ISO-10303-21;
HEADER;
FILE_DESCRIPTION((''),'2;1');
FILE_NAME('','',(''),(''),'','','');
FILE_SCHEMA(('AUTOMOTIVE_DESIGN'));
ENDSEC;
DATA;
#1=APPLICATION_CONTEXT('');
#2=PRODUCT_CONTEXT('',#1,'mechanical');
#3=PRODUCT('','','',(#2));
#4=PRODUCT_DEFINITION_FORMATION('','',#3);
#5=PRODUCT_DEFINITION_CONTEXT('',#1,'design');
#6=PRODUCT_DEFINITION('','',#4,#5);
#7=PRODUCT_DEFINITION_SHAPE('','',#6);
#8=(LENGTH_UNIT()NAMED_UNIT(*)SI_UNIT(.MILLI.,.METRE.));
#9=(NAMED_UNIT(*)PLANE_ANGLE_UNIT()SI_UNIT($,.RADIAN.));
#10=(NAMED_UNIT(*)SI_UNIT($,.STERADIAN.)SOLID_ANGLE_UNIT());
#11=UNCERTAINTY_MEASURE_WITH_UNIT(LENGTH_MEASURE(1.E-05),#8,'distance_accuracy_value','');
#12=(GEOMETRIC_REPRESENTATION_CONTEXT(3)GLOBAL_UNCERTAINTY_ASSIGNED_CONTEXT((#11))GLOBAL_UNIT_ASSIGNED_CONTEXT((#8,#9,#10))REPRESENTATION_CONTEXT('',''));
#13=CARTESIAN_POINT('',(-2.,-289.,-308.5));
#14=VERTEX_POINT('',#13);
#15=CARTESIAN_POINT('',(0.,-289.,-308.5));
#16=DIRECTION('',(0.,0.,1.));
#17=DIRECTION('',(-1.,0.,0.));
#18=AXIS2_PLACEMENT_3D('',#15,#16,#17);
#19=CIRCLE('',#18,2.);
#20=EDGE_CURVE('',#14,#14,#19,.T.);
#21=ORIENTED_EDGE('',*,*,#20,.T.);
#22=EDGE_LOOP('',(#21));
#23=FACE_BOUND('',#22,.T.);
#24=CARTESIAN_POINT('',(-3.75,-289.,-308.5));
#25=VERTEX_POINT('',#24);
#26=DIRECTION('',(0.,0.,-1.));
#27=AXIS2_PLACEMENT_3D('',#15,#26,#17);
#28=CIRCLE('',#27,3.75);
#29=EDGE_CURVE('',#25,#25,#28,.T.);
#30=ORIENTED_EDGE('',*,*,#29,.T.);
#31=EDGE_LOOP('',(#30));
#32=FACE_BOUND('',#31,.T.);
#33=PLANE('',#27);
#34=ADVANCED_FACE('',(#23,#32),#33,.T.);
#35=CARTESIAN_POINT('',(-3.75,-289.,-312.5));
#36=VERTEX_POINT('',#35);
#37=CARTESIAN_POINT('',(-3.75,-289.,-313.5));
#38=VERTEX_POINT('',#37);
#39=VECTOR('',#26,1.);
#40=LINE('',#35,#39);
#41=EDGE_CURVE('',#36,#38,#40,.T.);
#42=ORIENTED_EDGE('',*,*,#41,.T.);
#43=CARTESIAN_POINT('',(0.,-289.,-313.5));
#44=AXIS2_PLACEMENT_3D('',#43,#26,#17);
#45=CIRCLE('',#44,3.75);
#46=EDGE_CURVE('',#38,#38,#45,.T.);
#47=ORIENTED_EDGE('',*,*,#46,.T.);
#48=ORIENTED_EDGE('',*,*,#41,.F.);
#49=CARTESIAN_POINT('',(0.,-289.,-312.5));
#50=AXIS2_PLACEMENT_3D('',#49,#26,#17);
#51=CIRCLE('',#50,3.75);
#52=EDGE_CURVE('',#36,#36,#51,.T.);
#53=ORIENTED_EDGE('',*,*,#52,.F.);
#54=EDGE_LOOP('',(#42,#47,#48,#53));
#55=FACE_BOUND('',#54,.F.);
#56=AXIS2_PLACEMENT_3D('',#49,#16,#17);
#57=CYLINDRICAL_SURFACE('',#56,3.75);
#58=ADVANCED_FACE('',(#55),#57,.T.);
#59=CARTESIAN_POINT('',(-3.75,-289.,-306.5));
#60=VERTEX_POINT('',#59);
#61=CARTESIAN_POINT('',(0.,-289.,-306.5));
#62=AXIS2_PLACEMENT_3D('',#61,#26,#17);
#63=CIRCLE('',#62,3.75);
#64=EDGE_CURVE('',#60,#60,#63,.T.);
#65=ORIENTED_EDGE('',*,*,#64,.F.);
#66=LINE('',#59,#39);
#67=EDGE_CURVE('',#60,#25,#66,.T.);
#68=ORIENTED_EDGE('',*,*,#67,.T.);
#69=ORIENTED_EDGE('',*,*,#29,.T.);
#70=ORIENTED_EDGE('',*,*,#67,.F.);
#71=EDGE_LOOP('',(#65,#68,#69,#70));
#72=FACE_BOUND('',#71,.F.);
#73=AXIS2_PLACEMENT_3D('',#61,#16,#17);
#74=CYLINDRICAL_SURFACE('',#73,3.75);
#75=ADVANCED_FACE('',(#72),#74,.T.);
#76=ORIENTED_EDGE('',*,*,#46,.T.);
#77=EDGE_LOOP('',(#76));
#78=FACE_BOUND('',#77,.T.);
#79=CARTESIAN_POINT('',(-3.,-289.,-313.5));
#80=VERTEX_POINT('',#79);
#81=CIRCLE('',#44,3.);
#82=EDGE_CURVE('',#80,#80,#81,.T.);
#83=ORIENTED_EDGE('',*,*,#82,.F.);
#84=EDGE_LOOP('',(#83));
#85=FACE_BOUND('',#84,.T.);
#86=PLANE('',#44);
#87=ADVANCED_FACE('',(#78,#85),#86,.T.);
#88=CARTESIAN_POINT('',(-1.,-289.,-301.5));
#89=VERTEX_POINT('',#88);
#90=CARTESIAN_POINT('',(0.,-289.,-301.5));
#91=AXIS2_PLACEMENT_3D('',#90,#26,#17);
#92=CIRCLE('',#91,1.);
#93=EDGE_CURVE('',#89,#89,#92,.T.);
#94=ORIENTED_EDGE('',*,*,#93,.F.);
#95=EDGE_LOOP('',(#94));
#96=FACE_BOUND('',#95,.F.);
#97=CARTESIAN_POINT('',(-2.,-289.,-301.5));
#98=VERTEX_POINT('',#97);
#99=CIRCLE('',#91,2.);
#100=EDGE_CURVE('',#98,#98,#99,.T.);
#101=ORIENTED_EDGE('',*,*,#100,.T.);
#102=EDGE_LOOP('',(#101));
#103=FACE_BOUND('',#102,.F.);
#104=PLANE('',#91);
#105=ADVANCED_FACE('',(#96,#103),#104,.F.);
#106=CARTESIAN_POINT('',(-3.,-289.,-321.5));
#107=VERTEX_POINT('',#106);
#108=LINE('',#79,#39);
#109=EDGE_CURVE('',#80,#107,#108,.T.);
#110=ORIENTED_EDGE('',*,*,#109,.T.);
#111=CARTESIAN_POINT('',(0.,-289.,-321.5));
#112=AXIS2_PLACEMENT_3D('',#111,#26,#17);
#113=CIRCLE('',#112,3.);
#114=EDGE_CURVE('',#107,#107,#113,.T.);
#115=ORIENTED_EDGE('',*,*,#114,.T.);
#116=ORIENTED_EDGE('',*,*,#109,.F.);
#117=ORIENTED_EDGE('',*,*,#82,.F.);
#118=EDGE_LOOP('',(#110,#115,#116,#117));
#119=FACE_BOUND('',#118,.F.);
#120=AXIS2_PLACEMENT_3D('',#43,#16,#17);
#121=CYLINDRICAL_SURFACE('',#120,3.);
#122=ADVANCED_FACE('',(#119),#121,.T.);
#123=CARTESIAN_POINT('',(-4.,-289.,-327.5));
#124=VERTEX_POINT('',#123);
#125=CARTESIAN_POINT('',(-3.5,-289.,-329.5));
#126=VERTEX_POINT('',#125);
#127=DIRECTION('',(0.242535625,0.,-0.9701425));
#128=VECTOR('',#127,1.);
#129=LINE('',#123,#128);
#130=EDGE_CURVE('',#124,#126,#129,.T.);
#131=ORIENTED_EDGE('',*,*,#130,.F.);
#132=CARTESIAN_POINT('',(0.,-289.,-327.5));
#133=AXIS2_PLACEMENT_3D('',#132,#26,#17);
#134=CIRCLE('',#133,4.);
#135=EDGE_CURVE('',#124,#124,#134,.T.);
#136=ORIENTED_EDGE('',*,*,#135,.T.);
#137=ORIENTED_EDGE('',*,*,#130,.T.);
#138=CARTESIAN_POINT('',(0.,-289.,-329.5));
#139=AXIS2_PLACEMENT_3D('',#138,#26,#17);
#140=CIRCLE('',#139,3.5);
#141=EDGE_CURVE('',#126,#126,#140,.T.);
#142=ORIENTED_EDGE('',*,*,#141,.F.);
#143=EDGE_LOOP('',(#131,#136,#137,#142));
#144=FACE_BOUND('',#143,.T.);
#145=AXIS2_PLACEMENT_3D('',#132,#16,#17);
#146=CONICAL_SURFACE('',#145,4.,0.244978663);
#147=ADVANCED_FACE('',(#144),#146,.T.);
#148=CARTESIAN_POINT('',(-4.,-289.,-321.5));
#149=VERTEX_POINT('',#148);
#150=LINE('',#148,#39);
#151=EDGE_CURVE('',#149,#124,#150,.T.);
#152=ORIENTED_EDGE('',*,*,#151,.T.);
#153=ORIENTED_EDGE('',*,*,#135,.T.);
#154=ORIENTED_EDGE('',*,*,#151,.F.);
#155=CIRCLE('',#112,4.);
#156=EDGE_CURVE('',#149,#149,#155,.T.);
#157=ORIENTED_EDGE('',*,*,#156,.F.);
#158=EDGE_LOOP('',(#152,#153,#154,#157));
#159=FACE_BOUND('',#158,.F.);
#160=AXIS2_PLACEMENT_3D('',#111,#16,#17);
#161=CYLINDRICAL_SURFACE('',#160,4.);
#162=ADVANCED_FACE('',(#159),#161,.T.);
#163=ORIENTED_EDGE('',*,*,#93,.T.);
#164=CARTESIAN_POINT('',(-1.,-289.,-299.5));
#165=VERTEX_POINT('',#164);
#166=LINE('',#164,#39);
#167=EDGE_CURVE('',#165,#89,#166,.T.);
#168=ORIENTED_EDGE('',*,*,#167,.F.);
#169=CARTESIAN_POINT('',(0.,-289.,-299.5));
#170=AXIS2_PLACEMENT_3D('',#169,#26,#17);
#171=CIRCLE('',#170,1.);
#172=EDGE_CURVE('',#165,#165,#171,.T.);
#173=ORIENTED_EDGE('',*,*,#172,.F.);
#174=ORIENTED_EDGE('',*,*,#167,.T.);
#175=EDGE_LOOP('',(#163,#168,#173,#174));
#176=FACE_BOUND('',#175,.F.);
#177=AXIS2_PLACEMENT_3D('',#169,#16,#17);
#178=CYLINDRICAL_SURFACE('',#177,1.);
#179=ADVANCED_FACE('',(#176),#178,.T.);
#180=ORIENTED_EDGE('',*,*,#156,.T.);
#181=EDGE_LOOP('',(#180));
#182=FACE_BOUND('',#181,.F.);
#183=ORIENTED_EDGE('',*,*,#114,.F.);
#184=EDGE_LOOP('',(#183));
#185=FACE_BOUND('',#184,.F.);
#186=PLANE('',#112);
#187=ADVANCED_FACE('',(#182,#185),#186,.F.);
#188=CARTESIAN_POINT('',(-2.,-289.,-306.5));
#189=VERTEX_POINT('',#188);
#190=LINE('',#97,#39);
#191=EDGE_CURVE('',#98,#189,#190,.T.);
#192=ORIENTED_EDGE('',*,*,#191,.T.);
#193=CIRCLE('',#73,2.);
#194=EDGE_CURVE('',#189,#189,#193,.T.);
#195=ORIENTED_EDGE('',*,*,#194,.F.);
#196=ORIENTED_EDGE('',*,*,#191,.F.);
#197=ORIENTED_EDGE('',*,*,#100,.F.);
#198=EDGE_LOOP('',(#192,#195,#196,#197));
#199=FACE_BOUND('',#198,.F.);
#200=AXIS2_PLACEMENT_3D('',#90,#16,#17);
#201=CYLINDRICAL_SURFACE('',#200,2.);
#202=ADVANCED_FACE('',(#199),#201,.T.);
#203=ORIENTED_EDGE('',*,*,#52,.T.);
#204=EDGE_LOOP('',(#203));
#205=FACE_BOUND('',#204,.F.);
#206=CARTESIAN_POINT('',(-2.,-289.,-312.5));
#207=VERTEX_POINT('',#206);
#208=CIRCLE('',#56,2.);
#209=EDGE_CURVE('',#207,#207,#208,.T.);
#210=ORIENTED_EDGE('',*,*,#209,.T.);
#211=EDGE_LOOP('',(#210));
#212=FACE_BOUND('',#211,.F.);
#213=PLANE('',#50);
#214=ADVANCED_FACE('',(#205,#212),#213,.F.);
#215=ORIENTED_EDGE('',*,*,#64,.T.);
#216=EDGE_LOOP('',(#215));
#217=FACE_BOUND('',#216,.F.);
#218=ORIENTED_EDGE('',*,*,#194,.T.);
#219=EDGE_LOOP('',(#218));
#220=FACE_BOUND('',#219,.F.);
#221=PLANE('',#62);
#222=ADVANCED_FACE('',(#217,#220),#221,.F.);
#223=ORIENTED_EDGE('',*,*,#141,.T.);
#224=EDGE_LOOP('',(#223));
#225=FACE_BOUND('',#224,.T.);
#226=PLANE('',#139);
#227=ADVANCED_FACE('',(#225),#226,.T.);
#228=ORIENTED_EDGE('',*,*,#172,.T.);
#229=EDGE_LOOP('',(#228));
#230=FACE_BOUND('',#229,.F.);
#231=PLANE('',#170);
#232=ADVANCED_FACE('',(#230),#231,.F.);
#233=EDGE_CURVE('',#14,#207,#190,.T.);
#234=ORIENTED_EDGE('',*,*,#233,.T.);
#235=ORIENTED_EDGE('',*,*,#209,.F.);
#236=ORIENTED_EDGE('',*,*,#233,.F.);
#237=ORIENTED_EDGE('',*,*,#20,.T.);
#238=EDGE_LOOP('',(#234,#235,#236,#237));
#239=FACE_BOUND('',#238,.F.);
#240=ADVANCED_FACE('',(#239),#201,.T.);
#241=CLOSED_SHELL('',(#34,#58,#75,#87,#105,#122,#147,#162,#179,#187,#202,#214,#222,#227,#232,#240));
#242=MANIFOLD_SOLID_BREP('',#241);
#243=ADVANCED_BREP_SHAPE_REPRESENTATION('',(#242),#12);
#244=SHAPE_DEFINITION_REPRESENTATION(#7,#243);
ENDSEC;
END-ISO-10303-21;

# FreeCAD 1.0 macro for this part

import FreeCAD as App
import Part
import Sketcher
from FreeCAD import Vector


def add_polygon(sketch, points):
    """Adds a closed chain of lines whose ends are joined by coincident constraints."""
    first, n = sketch.GeometryCount, len(points)
    for a, b in zip(points, points[1:] + points[:1]):
        sketch.addGeometry(Part.LineSegment(App.Vector(*a, 0), App.Vector(*b, 0)), False)
    for i in range(n):
        sketch.addConstraint(Sketcher.Constraint("Coincident", first + i, 2, first + (i + 1) % n, 1))

doc = App.newDocument("Part")
body = doc.addObject("PartDesign::Body", "Body")

# Sketch on XY plane
sketch1 = body.newObject("Sketcher::SketchObject", "Sketch")
sketch1.AttachmentSupport = (doc.getObject("XY_Plane"), [""])
sketch1.MapMode = "FlatFace"
sketch1.addGeometry(Part.Circle(Vector(0, 0, 0), Vector(0, 0, 1), 2), False)
sketch1.addConstraint(Sketcher.Constraint("Coincident", 0, 3, -1, 1))
sketch1.addConstraint(Sketcher.Constraint("Diameter", 0, 4.0))
pad1 = body.newObject("PartDesign::Pad", "Pad")
pad1.Profile = sketch1
pad1.Length = 28
body2 = doc.addObject("PartDesign::Body", "Body001")

# Sketch on XY plane
sketch2 = body2.newObject("Sketcher::SketchObject", "Sketch001")
sketch2.AttachmentSupport = (doc.getObject("XY_Plane001"), [""])
sketch2.MapMode = "FlatFace"
sketch2.AttachmentOffset = App.Placement(Vector(0, 0, 5), App.Rotation())
sketch2.addGeometry(Part.Circle(Vector(0, 0, 0), Vector(0, 0, 1), 3.75), False)
sketch2.addConstraint(Sketcher.Constraint("Coincident", 0, 3, -1, 1))
sketch2.addConstraint(Sketcher.Constraint("Diameter", 0, 7.5))
pad2 = body2.newObject("PartDesign::Pad", "Pad001")
pad2.Profile = sketch2
pad2.Length = 2
body3 = doc.addObject("PartDesign::Body", "Body002")

# Sketch on XY plane
sketch3 = body3.newObject("Sketcher::SketchObject", "Sketch002")
sketch3.AttachmentSupport = (doc.getObject("XY_Plane002"), [""])
sketch3.MapMode = "FlatFace"
sketch3.AttachmentOffset = App.Placement(Vector(0, 0, 11), App.Rotation())
sketch3.addGeometry(Part.Circle(Vector(0, 0, 0), Vector(0, 0, 1), 3.75), False)
sketch3.addConstraint(Sketcher.Constraint("Coincident", 0, 3, -1, 1))
sketch3.addConstraint(Sketcher.Constraint("Diameter", 0, 7.5))
pad3 = body3.newObject("PartDesign::Pad", "Pad002")
pad3.Profile = sketch3
pad3.Length = 1
body4 = doc.addObject("PartDesign::Body", "Body003")

# Sketch on XY plane
sketch4 = body4.newObject("Sketcher::SketchObject", "Sketch003")
sketch4.AttachmentSupport = (doc.getObject("XY_Plane003"), [""])
sketch4.MapMode = "FlatFace"
sketch4.AttachmentOffset = App.Placement(Vector(0, 0, 12), App.Rotation())
sketch4.addGeometry(Part.Circle(Vector(0, 0, 0), Vector(0, 0, 1), 3), False)
sketch4.addConstraint(Sketcher.Constraint("Coincident", 0, 3, -1, 1))
sketch4.addConstraint(Sketcher.Constraint("Diameter", 0, 6.0))
pad4 = body4.newObject("PartDesign::Pad", "Pad003")
pad4.Profile = sketch4
pad4.Length = 8
body5 = doc.addObject("PartDesign::Body", "Body004")

# Sketch on XY plane
sketch5 = body5.newObject("Sketcher::SketchObject", "Sketch004")
sketch5.AttachmentSupport = (doc.getObject("XY_Plane004"), [""])
sketch5.MapMode = "FlatFace"
sketch5.AttachmentOffset = App.Placement(Vector(0, 0, 20), App.Rotation())
sketch5.addGeometry(Part.Circle(Vector(0, 0, 0), Vector(0, 0, 1), 4), False)
sketch5.addConstraint(Sketcher.Constraint("Coincident", 0, 3, -1, 1))
sketch5.addConstraint(Sketcher.Constraint("Diameter", 0, 8.0))
pad5 = body5.newObject("PartDesign::Pad", "Pad004")
pad5.Profile = sketch5
pad5.Length = 6
body6 = doc.addObject("PartDesign::Body", "Body005")

# Sketch on XZ plane
sketch6 = body6.newObject("Sketcher::SketchObject", "Sketch005")
sketch6.AttachmentSupport = (doc.getObject("XZ_Plane005"), [""])
sketch6.MapMode = "FlatFace"
add_polygon(sketch6, [(0, 26), (4, 26), (3.5, 28), (0, 28)])  # lines 0-3
sketch6.addConstraint(Sketcher.Constraint("Horizontal", 0))
sketch6.addConstraint(Sketcher.Constraint("Horizontal", 2))
sketch6.addConstraint(Sketcher.Constraint("Vertical", 3))
sketch6.addConstraint(Sketcher.Constraint("PointOnObject", 2, 2, -2))
sketch6.addConstraint(Sketcher.Constraint("DistanceX", 0, 1, 0, 2, 4.0))
sketch6.addConstraint(Sketcher.Constraint("DistanceY", 3, 2, 3, 1, 2.0))
sketch6.addConstraint(Sketcher.Constraint("DistanceX", 2, 2, 2, 1, 3.5))
sketch6.addConstraint(Sketcher.Constraint("DistanceY", -1, 1, 0, 2, 26.0))
revolution = body6.newObject("PartDesign::Revolution", "Revolution")
revolution.Profile = sketch6
revolution.ReferenceAxis = (sketch6, ["V_Axis"])
revolution.Angle = 360
doc.recompute()

boolean = body6.newObject("PartDesign::Boolean", "Boolean")
boolean.Type = "Fuse"
boolean.addObjects([body])
doc.recompute()

boolean2 = body6.newObject("PartDesign::Boolean", "Boolean001")
boolean2.Type = "Fuse"
boolean2.addObjects([body2])
doc.recompute()

boolean3 = body6.newObject("PartDesign::Boolean", "Boolean002")
boolean3.Type = "Fuse"
boolean3.addObjects([body3])
doc.recompute()

boolean4 = body6.newObject("PartDesign::Boolean", "Boolean003")
boolean4.Type = "Fuse"
boolean4.addObjects([body4])
doc.recompute()

boolean5 = body6.newObject("PartDesign::Boolean", "Boolean004")
boolean5.Type = "Fuse"
boolean5.addObjects([body5])
body7 = doc.addObject("PartDesign::Body", "Body006")

# Sketch on XY plane
sketch7 = body7.newObject("Sketcher::SketchObject", "Sketch006")
sketch7.AttachmentSupport = (doc.getObject("XY_Plane006"), [""])
sketch7.MapMode = "FlatFace"
sketch7.AttachmentOffset = App.Placement(Vector(0, 0, -2), App.Rotation())
sketch7.addGeometry(Part.Circle(Vector(0, 0, 0), Vector(0, 0, 1), 1), False)
sketch7.addConstraint(Sketcher.Constraint("Coincident", 0, 3, -1, 1))
sketch7.addConstraint(Sketcher.Constraint("Diameter", 0, 2.0))
pad6 = body7.newObject("PartDesign::Pad", "Pad005")
pad6.Profile = sketch7
pad6.Length = 2
doc.recompute()

boolean6 = body7.newObject("PartDesign::Boolean", "Boolean005")
boolean6.Type = "Fuse"
boolean6.addObjects([body6])
body8 = doc.addObject("PartDesign::Body", "Body007")
doc.recompute()

body7.Placement = App.Placement(Vector(0, -289, -301.5), App.Rotation(Vector(0, -1, 0), 180))
boolean7 = body8.newObject("PartDesign::Boolean", "Boolean006")
boolean7.Type = "Fuse"
boolean7.addObjects([body7])

doc.recompute()
